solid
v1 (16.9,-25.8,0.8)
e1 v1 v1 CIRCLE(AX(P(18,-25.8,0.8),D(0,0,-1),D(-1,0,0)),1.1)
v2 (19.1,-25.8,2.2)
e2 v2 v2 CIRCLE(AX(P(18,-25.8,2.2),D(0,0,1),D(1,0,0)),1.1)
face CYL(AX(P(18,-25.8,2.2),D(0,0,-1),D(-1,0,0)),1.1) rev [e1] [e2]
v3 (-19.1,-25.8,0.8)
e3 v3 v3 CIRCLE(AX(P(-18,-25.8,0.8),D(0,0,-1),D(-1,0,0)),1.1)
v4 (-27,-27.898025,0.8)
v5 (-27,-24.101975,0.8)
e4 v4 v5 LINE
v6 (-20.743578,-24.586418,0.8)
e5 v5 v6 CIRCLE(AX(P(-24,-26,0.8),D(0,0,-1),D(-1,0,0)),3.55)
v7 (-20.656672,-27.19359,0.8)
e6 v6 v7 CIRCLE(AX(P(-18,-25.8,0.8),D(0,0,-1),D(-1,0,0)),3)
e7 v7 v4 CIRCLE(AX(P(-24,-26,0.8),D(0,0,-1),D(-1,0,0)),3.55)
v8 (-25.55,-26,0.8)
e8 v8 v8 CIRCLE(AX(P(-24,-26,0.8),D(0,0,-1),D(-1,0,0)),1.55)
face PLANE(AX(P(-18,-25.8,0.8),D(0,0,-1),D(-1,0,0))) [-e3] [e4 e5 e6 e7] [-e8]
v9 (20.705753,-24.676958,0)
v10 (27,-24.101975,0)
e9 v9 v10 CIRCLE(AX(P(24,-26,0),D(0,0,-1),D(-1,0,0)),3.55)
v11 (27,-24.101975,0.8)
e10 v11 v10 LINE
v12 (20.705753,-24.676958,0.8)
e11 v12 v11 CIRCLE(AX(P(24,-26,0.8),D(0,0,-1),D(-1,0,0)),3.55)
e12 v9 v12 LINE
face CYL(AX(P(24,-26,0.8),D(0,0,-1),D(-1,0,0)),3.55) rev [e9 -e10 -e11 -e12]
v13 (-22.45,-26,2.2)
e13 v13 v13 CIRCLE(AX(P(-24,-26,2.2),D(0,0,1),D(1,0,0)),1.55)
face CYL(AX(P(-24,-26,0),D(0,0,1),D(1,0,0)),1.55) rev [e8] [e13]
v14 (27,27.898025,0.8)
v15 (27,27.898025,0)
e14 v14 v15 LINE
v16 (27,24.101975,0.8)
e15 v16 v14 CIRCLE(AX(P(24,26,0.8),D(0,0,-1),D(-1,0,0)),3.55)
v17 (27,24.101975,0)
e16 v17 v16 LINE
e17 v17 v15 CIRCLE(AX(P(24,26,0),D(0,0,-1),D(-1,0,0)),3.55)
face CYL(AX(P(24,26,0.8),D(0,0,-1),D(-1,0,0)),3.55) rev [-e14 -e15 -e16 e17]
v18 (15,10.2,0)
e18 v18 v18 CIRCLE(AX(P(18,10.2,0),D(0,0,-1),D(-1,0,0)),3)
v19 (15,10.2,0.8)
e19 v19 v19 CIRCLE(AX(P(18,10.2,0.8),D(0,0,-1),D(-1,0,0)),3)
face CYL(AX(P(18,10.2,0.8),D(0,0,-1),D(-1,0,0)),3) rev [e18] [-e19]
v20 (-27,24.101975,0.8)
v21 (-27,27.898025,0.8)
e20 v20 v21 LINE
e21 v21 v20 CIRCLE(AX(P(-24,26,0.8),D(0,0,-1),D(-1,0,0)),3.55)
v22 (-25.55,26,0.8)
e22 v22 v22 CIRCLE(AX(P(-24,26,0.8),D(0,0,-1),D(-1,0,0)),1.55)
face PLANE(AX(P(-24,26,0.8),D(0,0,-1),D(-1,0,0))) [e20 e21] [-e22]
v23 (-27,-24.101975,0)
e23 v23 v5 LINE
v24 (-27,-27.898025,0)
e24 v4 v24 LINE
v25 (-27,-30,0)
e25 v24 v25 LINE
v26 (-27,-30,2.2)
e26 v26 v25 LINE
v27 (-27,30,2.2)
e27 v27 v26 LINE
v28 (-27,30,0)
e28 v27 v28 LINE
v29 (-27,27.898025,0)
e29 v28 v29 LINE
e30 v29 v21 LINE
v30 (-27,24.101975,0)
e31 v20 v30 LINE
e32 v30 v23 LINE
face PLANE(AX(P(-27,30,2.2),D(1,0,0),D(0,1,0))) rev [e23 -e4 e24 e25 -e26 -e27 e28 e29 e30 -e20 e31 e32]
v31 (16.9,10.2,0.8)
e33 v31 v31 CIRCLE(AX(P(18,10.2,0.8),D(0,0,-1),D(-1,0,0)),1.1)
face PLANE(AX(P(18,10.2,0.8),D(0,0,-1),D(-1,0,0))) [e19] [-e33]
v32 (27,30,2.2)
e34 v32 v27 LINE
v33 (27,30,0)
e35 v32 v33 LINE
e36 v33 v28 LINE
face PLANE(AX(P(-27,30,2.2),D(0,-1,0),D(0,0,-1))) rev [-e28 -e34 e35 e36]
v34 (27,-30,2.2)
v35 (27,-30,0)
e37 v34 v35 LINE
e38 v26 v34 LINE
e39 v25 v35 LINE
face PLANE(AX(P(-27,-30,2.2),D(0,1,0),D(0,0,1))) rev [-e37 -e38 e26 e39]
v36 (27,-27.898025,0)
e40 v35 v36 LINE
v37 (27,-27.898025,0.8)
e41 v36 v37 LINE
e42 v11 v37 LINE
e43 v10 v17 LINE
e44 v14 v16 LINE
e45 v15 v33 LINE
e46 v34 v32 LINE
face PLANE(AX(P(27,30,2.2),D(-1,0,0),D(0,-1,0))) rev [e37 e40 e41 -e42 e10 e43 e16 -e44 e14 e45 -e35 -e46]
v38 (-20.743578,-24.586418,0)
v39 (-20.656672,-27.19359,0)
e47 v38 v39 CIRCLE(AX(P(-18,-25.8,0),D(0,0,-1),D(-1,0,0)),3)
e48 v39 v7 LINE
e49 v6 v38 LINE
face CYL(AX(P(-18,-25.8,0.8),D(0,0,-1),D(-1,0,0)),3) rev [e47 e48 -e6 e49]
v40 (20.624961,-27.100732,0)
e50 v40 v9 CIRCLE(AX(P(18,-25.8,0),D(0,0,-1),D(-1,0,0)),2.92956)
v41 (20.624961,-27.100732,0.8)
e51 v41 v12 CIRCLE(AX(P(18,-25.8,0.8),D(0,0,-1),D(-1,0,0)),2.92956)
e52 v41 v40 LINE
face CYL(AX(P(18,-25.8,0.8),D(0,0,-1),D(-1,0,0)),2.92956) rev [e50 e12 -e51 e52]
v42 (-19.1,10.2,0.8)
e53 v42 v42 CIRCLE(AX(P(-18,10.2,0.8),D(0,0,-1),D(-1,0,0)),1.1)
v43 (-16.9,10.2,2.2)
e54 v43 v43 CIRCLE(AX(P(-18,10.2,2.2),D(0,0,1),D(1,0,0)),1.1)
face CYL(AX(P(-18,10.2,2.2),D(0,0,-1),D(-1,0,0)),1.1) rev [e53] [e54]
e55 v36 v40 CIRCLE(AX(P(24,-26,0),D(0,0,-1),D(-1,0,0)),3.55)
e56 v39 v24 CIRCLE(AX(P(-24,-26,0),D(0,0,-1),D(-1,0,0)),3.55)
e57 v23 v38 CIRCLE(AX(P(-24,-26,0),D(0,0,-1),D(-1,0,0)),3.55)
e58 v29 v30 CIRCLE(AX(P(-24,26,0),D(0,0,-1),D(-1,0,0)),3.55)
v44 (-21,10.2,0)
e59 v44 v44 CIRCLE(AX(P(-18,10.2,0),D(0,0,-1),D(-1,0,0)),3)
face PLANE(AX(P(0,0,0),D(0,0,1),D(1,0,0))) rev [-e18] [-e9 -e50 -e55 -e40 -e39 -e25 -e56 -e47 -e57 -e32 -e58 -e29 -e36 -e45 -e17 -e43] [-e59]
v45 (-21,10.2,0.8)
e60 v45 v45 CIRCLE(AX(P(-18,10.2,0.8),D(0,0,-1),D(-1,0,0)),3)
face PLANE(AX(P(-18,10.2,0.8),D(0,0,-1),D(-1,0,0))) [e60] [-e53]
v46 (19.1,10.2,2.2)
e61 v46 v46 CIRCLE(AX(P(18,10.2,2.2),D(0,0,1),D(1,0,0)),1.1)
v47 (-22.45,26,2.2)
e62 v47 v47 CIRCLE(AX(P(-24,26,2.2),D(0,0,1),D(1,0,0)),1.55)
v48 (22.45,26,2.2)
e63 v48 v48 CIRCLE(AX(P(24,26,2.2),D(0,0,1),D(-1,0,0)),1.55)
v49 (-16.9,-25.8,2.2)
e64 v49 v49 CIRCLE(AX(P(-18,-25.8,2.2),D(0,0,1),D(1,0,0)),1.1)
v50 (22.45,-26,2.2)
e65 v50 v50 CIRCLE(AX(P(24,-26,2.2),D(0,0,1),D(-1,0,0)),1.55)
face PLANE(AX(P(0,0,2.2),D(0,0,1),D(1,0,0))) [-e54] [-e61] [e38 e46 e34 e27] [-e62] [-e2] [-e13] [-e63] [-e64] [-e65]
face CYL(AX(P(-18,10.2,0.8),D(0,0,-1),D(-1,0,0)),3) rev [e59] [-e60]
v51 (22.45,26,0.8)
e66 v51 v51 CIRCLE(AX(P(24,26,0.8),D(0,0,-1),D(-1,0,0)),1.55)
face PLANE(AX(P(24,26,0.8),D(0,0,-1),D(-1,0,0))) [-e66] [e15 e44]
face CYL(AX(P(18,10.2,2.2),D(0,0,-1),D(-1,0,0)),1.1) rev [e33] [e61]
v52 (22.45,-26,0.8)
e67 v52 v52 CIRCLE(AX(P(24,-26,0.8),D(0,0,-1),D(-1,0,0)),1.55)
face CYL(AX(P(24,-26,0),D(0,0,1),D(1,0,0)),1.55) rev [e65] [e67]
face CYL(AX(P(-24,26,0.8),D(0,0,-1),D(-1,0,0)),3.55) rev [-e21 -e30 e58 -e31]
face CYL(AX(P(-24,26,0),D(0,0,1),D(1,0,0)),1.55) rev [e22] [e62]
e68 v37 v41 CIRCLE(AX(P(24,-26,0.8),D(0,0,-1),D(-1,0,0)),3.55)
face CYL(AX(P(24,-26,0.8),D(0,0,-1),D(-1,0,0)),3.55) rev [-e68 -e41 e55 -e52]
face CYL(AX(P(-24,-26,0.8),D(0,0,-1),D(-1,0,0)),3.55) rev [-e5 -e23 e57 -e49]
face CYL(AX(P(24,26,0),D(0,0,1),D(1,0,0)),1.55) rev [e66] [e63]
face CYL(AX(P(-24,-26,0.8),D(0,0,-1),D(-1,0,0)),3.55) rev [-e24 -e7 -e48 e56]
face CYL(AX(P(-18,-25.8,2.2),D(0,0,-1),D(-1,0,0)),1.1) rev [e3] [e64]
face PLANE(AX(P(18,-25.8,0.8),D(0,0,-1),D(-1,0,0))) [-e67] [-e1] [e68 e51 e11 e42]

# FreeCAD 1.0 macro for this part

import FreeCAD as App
import Part
import Sketcher
Q = App.Units.Quantity

doc = App.newDocument("Part")
body = doc.addObject("PartDesign::Body", "Body")

# Sketch on XY plane
sketch1 = doc.addObject("Sketcher::SketchObject", "Sketch")
body.addObject(sketch1)
sketch1.AttachmentSupport = (doc.XY_Plane, [""])
sketch1.MapMode = "FlatFace"
sketch1.addGeometry(Part.LineSegment(App.Vector(-27, 30, 0), App.Vector(-27, -30, 0)), False)
sketch1.addGeometry(Part.LineSegment(App.Vector(-27, -30, 0), App.Vector(27, -30, 0)), False)
sketch1.addGeometry(Part.LineSegment(App.Vector(27, -30, 0), App.Vector(27, 30, 0)), False)
sketch1.addGeometry(Part.LineSegment(App.Vector(27, 30, 0), App.Vector(-27, 30, 0)), False)
sketch1.addGeometry(Part.Circle(App.Vector(-18, -25.8, 0), App.Vector(0, 0, 1), 1.1), False)
sketch1.addGeometry(Part.Circle(App.Vector(18, -25.8, 0), App.Vector(0, 0, 1), 1.1), False)
sketch1.addGeometry(Part.Circle(App.Vector(-18, 10.2, 0), App.Vector(0, 0, 1), 1.1), False)
sketch1.addGeometry(Part.Circle(App.Vector(18, 10.2, 0), App.Vector(0, 0, 1), 1.1), False)
sketch1.addConstraint(Sketcher.Constraint("Coincident", 0, 2, 1, 1))
sketch1.addConstraint(Sketcher.Constraint("Coincident", 1, 2, 2, 1))
sketch1.addConstraint(Sketcher.Constraint("Coincident", 2, 2, 3, 1))
sketch1.addConstraint(Sketcher.Constraint("Coincident", 3, 2, 0, 1))
sketch1.addConstraint(Sketcher.Constraint("Vertical", 0))
sketch1.addConstraint(Sketcher.Constraint("Horizontal", 1))
sketch1.addConstraint(Sketcher.Constraint("Vertical", 2))
sketch1.addConstraint(Sketcher.Constraint("Horizontal", 3))
sketch1.addConstraint(Sketcher.Constraint("Equal", 4, 5))
sketch1.addConstraint(Sketcher.Constraint("Equal", 5, 6))
sketch1.addConstraint(Sketcher.Constraint("Equal", 6, 7))
sketch1.addConstraint(Sketcher.Constraint("Symmetric", 0, 2, 2, 2, -1, 1))
sketch1.addConstraint(Sketcher.Constraint("Symmetric", 4, 3, 5, 3, -2))
sketch1.addConstraint(Sketcher.Constraint("Symmetric", 6, 3, 7, 3, -2))
sketch1.addConstraint(Sketcher.Constraint("Vertical", 4, 3, 6, 3))
sketch1.addConstraint(Sketcher.Constraint("Diameter", 4, Q("2.2 mm")))
sketch1.addConstraint(Sketcher.Constraint("DistanceX", 1, 1, 1, 2, Q("54 mm")))
sketch1.addConstraint(Sketcher.Constraint("DistanceY", 0, 2, 0, 1, Q("60 mm")))
sketch1.addConstraint(Sketcher.Constraint("DistanceX", 4, 3, -1, 1, Q("18 mm")))
sketch1.addConstraint(Sketcher.Constraint("DistanceY", 4, 3, 6, 3, Q("36 mm")))
sketch1.addConstraint(Sketcher.Constraint("DistanceY", 4, 3, -1, 1, Q("25.8 mm")))
pad1 = doc.addObject("PartDesign::Pad", "Pad")
body.addObject(pad1)
pad1.Profile = sketch1
pad1.Length = 2.2

# Sketch on XY plane
sketch2 = doc.addObject("Sketcher::SketchObject", "Sketch001")
body.addObject(sketch2)
sketch2.AttachmentSupport = (doc.XY_Plane, [""])
sketch2.MapMode = "FlatFace"
sketch2.addGeometry(Part.Circle(App.Vector(18, 10.2, 0), App.Vector(0, 0, 1), 3), False)
sketch2.addGeometry(Part.Circle(App.Vector(-18, 10.2, 0), App.Vector(0, 0, 1), 3), False)
sketch2.addGeometry(Part.Circle(App.Vector(18, -25.8, 0), App.Vector(0, 0, 1), 2.9), False)
sketch2.addGeometry(Part.Circle(App.Vector(-18, -25.8, 0), App.Vector(0, 0, 1), 3), False)
sketch2.addConstraint(Sketcher.Constraint("Equal", 0, 1))
sketch2.addConstraint(Sketcher.Constraint("Equal", 1, 3))
sketch2.addConstraint(Sketcher.Constraint("Symmetric", 0, 3, 1, 3, -2))
sketch2.addConstraint(Sketcher.Constraint("Symmetric", 2, 3, 3, 3, -2))
sketch2.addConstraint(Sketcher.Constraint("Vertical", 0, 3, 2, 3))
sketch2.addConstraint(Sketcher.Constraint("Diameter", 0, Q("6 mm")))
sketch2.addConstraint(Sketcher.Constraint("DistanceX", -1, 1, 0, 3, Q("18 mm")))
sketch2.addConstraint(Sketcher.Constraint("DistanceY", 2, 3, 0, 3, Q("36 mm")))
sketch2.addConstraint(Sketcher.Constraint("DistanceY", -1, 1, 0, 3, Q("10.2 mm")))
sketch2.addConstraint(Sketcher.Constraint("Diameter", 2, Q("5.859121 mm")))
pocket1 = doc.addObject("PartDesign::Pocket", "Pocket")
body.addObject(pocket1)
pocket1.Profile = sketch2
pocket1.Length = 0.8
pocket1.Reversed = True

# Sketch on XY plane
sketch3 = doc.addObject("Sketcher::SketchObject", "Sketch002")
body.addObject(sketch3)
sketch3.AttachmentSupport = (doc.XY_Plane, [""])
sketch3.MapMode = "FlatFace"
sketch3.AttachmentOffset = App.Placement(App.Vector(0, 0, 2.2), App.Rotation())
sketch3.addGeometry(Part.Circle(App.Vector(-18, -25.8, 0), App.Vector(0, 0, 1), 1.1), False)
sketch3.addGeometry(Part.Circle(App.Vector(-24, -26, 0), App.Vector(0, 0, 1), 1.6), False)
sketch3.addGeometry(Part.Circle(App.Vector(-24, 26, 0), App.Vector(0, 0, 1), 1.6), False)
sketch3.addGeometry(Part.Circle(App.Vector(24, -26, 0), App.Vector(0, 0, 1), 1.6), False)
sketch3.addGeometry(Part.Circle(App.Vector(24, 26, 0), App.Vector(0, 0, 1), 1.6), False)
sketch3.addConstraint(Sketcher.Constraint("Equal", 1, 2))
sketch3.addConstraint(Sketcher.Constraint("Equal", 2, 3))
sketch3.addConstraint(Sketcher.Constraint("Equal", 3, 4))
sketch3.addConstraint(Sketcher.Constraint("Symmetric", 2, 3, 3, 3, -1, 1))
sketch3.addConstraint(Sketcher.Constraint("Symmetric", 1, 3, 4, 3, -1, 1))
sketch3.addConstraint(Sketcher.Constraint("Symmetric", 1, 3, 3, 3, -2))
sketch3.addConstraint(Sketcher.Constraint("Diameter", 0, Q("2.2 mm")))
sketch3.addConstraint(Sketcher.Constraint("Diameter", 1, Q("3.1 mm")))
sketch3.addConstraint(Sketcher.Constraint("DistanceX", 0, 3, -1, 1, Q("18 mm")))
sketch3.addConstraint(Sketcher.Constraint("DistanceX", 1, 3, -1, 1, Q("24 mm")))
sketch3.addConstraint(Sketcher.Constraint("DistanceY", 1, 3, -1, 1, Q("26 mm")))
sketch3.addConstraint(Sketcher.Constraint("DistanceY", 0, 3, -1, 1, Q("25.8 mm")))
pocket2 = doc.addObject("PartDesign::Pocket", "Pocket001")
body.addObject(pocket2)
pocket2.Profile = sketch3
pocket2.Type = "ThroughAll"

# Sketch on XY plane
sketch4 = doc.addObject("Sketcher::SketchObject", "Sketch003")
body.addObject(sketch4)
sketch4.AttachmentSupport = (doc.XY_Plane, [""])
sketch4.MapMode = "FlatFace"
sketch4.addGeometry(Part.Circle(App.Vector(24, 26, 0), App.Vector(0, 0, 1), 3.5), False)
sketch4.addGeometry(Part.Circle(App.Vector(24, 26, 0), App.Vector(0, 0, 1), 1.6), False)
sketch4.addGeometry(Part.Circle(App.Vector(-24, 26, 0), App.Vector(0, 0, 1), 3.5), False)
sketch4.addGeometry(Part.Circle(App.Vector(-24, 26, 0), App.Vector(0, 0, 1), 1.6), False)
sketch4.addGeometry(Part.Circle(App.Vector(-24, -26, 0), App.Vector(0, 0, 1), 3.5), False)
sketch4.addGeometry(Part.Circle(App.Vector(-24, -26, 0), App.Vector(0, 0, 1), 1.6), False)
sketch4.addGeometry(Part.Circle(App.Vector(24, -26, 0), App.Vector(0, 0, 1), 3.5), False)
sketch4.addGeometry(Part.Circle(App.Vector(24, -26, 0), App.Vector(0, 0, 1), 1.6), False)
sketch4.addConstraint(Sketcher.Constraint("Coincident", 1, 3, 0, 3))
sketch4.addConstraint(Sketcher.Constraint("Coincident", 3, 3, 2, 3))
sketch4.addConstraint(Sketcher.Constraint("Coincident", 5, 3, 4, 3))
sketch4.addConstraint(Sketcher.Constraint("Coincident", 7, 3, 6, 3))
sketch4.addConstraint(Sketcher.Constraint("Equal", 0, 2))
sketch4.addConstraint(Sketcher.Constraint("Equal", 1, 3))
sketch4.addConstraint(Sketcher.Constraint("Equal", 2, 4))
sketch4.addConstraint(Sketcher.Constraint("Equal", 3, 5))
sketch4.addConstraint(Sketcher.Constraint("Equal", 4, 6))
sketch4.addConstraint(Sketcher.Constraint("Equal", 5, 7))
sketch4.addConstraint(Sketcher.Constraint("Symmetric", 0, 3, 4, 3, -1, 1))
sketch4.addConstraint(Sketcher.Constraint("Symmetric", 2, 3, 6, 3, -1, 1))
sketch4.addConstraint(Sketcher.Constraint("Symmetric", 0, 3, 2, 3, -2))
sketch4.addConstraint(Sketcher.Constraint("Diameter", 0, Q("7.1 mm")))
sketch4.addConstraint(Sketcher.Constraint("Diameter", 1, Q("3.1 mm")))
sketch4.addConstraint(Sketcher.Constraint("DistanceX", -1, 1, 0, 3, Q("24 mm")))
sketch4.addConstraint(Sketcher.Constraint("DistanceY", -1, 1, 0, 3, Q("26 mm")))
pocket3 = doc.addObject("PartDesign::Pocket", "Pocket002")
body.addObject(pocket3)
pocket3.Profile = sketch4
pocket3.Length = 0.8
pocket3.Reversed = True

doc.recompute()
